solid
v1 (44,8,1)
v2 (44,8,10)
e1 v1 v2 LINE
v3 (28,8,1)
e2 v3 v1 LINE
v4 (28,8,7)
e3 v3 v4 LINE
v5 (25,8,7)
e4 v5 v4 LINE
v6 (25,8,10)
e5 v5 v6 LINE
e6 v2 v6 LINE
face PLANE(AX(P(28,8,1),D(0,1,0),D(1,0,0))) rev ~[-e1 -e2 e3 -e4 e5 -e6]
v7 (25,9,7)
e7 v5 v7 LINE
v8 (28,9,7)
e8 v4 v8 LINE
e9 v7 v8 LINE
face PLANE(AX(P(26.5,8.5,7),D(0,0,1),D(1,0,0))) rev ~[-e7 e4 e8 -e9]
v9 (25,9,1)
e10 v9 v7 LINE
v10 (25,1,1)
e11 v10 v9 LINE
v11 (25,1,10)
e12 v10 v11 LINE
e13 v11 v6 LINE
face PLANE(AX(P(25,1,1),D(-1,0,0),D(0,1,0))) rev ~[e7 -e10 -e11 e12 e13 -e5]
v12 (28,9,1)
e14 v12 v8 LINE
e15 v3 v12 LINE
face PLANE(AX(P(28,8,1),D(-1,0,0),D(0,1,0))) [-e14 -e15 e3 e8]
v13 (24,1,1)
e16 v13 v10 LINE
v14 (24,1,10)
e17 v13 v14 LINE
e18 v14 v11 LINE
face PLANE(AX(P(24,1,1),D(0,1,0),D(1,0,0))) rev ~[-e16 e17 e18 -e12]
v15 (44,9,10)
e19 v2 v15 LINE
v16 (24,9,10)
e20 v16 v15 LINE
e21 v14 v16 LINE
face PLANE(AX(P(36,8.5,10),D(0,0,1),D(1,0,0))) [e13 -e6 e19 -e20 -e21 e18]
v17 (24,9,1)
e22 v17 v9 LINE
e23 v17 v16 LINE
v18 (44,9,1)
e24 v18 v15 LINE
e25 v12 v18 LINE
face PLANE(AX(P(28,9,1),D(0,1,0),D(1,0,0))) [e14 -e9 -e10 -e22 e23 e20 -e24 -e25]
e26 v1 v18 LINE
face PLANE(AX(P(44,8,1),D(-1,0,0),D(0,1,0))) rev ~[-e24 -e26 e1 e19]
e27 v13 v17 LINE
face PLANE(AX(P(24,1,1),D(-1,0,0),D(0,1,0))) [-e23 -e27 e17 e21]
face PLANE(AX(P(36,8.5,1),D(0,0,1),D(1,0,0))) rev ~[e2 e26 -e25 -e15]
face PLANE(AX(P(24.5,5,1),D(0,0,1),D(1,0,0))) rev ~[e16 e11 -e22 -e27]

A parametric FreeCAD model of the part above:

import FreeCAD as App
import Part
import Sketcher

V = App.Vector
Q = App.Units.Quantity


def add_polygon(sketch, points):
    """Adds a closed chain of lines whose ends are joined by coincident constraints."""
    first, n = sketch.GeometryCount, len(points)
    for a, b in zip(points, points[1:] + points[:1]):
        sketch.addGeometry(Part.LineSegment(App.Vector(*a, 0), App.Vector(*b, 0)), False)
    for i in range(n):
        sketch.addConstraint(Sketcher.Constraint("Coincident", first + i, 2, first + (i + 1) % n, 1))

doc = App.newDocument("Part")
body = doc.addObject("PartDesign::Body", "Body")

sketch1 = body.newObject("Sketcher::SketchObject", "Sketch")
sketch1.AttachmentSupport = (doc.getObject("XY_Plane"), [""])
sketch1.MapMode = "FlatFace"
sketch1.AttachmentOffset = App.Placement(V(0, 0, 1), App.Rotation())
add_polygon(sketch1, [(24, 9), (24, 1), (25, 1), (25, 9)])
sketch1.addConstraint([
    Sketcher.Constraint("Vertical", 0),
    Sketcher.Constraint("Horizontal", 1),
    Sketcher.Constraint("Vertical", 2),
    Sketcher.Constraint("Horizontal", 3),
    Sketcher.Constraint("DistanceX", 1, 1, 1, 2, Q("1 mm")),
    Sketcher.Constraint("DistanceY", 0, 2, 0, 1, Q("8 mm")),
    Sketcher.Constraint("DistanceX", -1, 1, 0, 2, Q("24 mm")),
    Sketcher.Constraint("DistanceY", -1, 1, 0, 2, Q("1 mm")),
])
pad1 = body.newObject("PartDesign::Pad", "Pad")
pad1.Profile = sketch1
pad1.Length = 9
body2 = doc.addObject("PartDesign::Body", "Body001")

sketch2 = body2.newObject("Sketcher::SketchObject", "Sketch001")
sketch2.AttachmentSupport = (doc.getObject("XY_Plane001"), [""])
sketch2.MapMode = "FlatFace"
sketch2.AttachmentOffset = App.Placement(V(0, 0, 1), App.Rotation())
add_polygon(sketch2, [(28, 9), (28, 8), (44, 8), (44, 9)])
sketch2.addConstraint([
    Sketcher.Constraint("Vertical", 0),
    Sketcher.Constraint("Horizontal", 1),
    Sketcher.Constraint("Vertical", 2),
    Sketcher.Constraint("Horizontal", 3),
    Sketcher.Constraint("DistanceX", 1, 1, 1, 2, Q("16 mm")),
    Sketcher.Constraint("DistanceY", 0, 2, 0, 1, Q("1 mm")),
    Sketcher.Constraint("DistanceX", -1, 1, 0, 2, Q("28 mm")),
    Sketcher.Constraint("DistanceY", -1, 1, 0, 2, Q("8 mm")),
])
pad2 = body2.newObject("PartDesign::Pad", "Pad001")
pad2.Profile = sketch2
pad2.Length = 9
body3 = doc.addObject("PartDesign::Body", "Body002")

sketch3 = body3.newObject("Sketcher::SketchObject", "Sketch002")
sketch3.AttachmentSupport = (doc.getObject("XY_Plane002"), [""])
sketch3.MapMode = "FlatFace"
sketch3.AttachmentOffset = App.Placement(V(0, 0, 7), App.Rotation())
add_polygon(sketch3, [(25, 9), (25, 8), (28, 8), (28, 9)])
sketch3.addConstraint([
    Sketcher.Constraint("Vertical", 0),
    Sketcher.Constraint("Horizontal", 1),
    Sketcher.Constraint("Vertical", 2),
    Sketcher.Constraint("Horizontal", 3),
    Sketcher.Constraint("DistanceX", 1, 1, 1, 2, Q("3 mm")),
    Sketcher.Constraint("DistanceY", 0, 2, 0, 1, Q("1 mm")),
    Sketcher.Constraint("DistanceX", -1, 1, 0, 2, Q("25 mm")),
    Sketcher.Constraint("DistanceY", -1, 1, 0, 2, Q("8 mm")),
])
pad3 = body3.newObject("PartDesign::Pad", "Pad002")
pad3.Profile = sketch3
pad3.Length = 3
doc.recompute()

boolean = body3.newObject("PartDesign::Boolean", "Boolean")
boolean.Type = "Fuse"
boolean.addObjects([body])
doc.recompute()

boolean2 = body3.newObject("PartDesign::Boolean", "Boolean001")
boolean2.Type = "Fuse"
boolean2.addObjects([body2])

doc.recompute()
